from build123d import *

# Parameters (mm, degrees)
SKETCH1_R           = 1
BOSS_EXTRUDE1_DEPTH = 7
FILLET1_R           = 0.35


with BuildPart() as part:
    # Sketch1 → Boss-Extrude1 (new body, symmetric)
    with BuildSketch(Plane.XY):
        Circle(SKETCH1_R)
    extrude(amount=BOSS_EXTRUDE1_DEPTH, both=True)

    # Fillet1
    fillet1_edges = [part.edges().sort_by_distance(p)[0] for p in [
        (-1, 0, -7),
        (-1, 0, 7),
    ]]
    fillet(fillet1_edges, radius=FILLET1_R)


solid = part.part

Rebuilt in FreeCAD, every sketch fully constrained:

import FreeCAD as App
import Part
import Sketcher
from FreeCAD import Vector
Q = App.Units.Quantity


def edges_at(feature, points):
    """Names of the edges that pass closest to the given points."""
    edges = feature.Shape.Edges
    near = lambda p: min(range(len(edges)), key=lambda i: edges[i].distToShape(Part.Vertex(*p))[0])
    return sorted({f"Edge{near(p) + 1}" for p in points})

doc = App.newDocument("Part")
body = doc.addObject("PartDesign::Body", "Body")

# Sketch on XY plane
sketch1 = body.newObject("Sketcher::SketchObject", "Sketch")
sketch1.AttachmentSupport = (doc.getObject("XY_Plane"), [""])
sketch1.MapMode = "FlatFace"
sketch1.addGeometry(Part.Circle(Vector(0, 0, 0), Vector(0, 0, 1), 1), False)
sketch1.addConstraint(Sketcher.Constraint("Coincident", 0, 3, -1, 1))
sketch1.addConstraint(Sketcher.Constraint("Diameter", 0, Q("2 mm")))
pad1 = body.newObject("PartDesign::Pad", "Pad")
pad1.Profile = sketch1
pad1.Length = 14
pad1.Midplane = True
doc.recompute()

fillet = body.newObject("PartDesign::Fillet", "Fillet")
fillet.Base = (pad1, edges_at(pad1, [(-1, 0, -7), (-1, 0, 7)]))
fillet.Radius = 0.35

doc.recompute()
